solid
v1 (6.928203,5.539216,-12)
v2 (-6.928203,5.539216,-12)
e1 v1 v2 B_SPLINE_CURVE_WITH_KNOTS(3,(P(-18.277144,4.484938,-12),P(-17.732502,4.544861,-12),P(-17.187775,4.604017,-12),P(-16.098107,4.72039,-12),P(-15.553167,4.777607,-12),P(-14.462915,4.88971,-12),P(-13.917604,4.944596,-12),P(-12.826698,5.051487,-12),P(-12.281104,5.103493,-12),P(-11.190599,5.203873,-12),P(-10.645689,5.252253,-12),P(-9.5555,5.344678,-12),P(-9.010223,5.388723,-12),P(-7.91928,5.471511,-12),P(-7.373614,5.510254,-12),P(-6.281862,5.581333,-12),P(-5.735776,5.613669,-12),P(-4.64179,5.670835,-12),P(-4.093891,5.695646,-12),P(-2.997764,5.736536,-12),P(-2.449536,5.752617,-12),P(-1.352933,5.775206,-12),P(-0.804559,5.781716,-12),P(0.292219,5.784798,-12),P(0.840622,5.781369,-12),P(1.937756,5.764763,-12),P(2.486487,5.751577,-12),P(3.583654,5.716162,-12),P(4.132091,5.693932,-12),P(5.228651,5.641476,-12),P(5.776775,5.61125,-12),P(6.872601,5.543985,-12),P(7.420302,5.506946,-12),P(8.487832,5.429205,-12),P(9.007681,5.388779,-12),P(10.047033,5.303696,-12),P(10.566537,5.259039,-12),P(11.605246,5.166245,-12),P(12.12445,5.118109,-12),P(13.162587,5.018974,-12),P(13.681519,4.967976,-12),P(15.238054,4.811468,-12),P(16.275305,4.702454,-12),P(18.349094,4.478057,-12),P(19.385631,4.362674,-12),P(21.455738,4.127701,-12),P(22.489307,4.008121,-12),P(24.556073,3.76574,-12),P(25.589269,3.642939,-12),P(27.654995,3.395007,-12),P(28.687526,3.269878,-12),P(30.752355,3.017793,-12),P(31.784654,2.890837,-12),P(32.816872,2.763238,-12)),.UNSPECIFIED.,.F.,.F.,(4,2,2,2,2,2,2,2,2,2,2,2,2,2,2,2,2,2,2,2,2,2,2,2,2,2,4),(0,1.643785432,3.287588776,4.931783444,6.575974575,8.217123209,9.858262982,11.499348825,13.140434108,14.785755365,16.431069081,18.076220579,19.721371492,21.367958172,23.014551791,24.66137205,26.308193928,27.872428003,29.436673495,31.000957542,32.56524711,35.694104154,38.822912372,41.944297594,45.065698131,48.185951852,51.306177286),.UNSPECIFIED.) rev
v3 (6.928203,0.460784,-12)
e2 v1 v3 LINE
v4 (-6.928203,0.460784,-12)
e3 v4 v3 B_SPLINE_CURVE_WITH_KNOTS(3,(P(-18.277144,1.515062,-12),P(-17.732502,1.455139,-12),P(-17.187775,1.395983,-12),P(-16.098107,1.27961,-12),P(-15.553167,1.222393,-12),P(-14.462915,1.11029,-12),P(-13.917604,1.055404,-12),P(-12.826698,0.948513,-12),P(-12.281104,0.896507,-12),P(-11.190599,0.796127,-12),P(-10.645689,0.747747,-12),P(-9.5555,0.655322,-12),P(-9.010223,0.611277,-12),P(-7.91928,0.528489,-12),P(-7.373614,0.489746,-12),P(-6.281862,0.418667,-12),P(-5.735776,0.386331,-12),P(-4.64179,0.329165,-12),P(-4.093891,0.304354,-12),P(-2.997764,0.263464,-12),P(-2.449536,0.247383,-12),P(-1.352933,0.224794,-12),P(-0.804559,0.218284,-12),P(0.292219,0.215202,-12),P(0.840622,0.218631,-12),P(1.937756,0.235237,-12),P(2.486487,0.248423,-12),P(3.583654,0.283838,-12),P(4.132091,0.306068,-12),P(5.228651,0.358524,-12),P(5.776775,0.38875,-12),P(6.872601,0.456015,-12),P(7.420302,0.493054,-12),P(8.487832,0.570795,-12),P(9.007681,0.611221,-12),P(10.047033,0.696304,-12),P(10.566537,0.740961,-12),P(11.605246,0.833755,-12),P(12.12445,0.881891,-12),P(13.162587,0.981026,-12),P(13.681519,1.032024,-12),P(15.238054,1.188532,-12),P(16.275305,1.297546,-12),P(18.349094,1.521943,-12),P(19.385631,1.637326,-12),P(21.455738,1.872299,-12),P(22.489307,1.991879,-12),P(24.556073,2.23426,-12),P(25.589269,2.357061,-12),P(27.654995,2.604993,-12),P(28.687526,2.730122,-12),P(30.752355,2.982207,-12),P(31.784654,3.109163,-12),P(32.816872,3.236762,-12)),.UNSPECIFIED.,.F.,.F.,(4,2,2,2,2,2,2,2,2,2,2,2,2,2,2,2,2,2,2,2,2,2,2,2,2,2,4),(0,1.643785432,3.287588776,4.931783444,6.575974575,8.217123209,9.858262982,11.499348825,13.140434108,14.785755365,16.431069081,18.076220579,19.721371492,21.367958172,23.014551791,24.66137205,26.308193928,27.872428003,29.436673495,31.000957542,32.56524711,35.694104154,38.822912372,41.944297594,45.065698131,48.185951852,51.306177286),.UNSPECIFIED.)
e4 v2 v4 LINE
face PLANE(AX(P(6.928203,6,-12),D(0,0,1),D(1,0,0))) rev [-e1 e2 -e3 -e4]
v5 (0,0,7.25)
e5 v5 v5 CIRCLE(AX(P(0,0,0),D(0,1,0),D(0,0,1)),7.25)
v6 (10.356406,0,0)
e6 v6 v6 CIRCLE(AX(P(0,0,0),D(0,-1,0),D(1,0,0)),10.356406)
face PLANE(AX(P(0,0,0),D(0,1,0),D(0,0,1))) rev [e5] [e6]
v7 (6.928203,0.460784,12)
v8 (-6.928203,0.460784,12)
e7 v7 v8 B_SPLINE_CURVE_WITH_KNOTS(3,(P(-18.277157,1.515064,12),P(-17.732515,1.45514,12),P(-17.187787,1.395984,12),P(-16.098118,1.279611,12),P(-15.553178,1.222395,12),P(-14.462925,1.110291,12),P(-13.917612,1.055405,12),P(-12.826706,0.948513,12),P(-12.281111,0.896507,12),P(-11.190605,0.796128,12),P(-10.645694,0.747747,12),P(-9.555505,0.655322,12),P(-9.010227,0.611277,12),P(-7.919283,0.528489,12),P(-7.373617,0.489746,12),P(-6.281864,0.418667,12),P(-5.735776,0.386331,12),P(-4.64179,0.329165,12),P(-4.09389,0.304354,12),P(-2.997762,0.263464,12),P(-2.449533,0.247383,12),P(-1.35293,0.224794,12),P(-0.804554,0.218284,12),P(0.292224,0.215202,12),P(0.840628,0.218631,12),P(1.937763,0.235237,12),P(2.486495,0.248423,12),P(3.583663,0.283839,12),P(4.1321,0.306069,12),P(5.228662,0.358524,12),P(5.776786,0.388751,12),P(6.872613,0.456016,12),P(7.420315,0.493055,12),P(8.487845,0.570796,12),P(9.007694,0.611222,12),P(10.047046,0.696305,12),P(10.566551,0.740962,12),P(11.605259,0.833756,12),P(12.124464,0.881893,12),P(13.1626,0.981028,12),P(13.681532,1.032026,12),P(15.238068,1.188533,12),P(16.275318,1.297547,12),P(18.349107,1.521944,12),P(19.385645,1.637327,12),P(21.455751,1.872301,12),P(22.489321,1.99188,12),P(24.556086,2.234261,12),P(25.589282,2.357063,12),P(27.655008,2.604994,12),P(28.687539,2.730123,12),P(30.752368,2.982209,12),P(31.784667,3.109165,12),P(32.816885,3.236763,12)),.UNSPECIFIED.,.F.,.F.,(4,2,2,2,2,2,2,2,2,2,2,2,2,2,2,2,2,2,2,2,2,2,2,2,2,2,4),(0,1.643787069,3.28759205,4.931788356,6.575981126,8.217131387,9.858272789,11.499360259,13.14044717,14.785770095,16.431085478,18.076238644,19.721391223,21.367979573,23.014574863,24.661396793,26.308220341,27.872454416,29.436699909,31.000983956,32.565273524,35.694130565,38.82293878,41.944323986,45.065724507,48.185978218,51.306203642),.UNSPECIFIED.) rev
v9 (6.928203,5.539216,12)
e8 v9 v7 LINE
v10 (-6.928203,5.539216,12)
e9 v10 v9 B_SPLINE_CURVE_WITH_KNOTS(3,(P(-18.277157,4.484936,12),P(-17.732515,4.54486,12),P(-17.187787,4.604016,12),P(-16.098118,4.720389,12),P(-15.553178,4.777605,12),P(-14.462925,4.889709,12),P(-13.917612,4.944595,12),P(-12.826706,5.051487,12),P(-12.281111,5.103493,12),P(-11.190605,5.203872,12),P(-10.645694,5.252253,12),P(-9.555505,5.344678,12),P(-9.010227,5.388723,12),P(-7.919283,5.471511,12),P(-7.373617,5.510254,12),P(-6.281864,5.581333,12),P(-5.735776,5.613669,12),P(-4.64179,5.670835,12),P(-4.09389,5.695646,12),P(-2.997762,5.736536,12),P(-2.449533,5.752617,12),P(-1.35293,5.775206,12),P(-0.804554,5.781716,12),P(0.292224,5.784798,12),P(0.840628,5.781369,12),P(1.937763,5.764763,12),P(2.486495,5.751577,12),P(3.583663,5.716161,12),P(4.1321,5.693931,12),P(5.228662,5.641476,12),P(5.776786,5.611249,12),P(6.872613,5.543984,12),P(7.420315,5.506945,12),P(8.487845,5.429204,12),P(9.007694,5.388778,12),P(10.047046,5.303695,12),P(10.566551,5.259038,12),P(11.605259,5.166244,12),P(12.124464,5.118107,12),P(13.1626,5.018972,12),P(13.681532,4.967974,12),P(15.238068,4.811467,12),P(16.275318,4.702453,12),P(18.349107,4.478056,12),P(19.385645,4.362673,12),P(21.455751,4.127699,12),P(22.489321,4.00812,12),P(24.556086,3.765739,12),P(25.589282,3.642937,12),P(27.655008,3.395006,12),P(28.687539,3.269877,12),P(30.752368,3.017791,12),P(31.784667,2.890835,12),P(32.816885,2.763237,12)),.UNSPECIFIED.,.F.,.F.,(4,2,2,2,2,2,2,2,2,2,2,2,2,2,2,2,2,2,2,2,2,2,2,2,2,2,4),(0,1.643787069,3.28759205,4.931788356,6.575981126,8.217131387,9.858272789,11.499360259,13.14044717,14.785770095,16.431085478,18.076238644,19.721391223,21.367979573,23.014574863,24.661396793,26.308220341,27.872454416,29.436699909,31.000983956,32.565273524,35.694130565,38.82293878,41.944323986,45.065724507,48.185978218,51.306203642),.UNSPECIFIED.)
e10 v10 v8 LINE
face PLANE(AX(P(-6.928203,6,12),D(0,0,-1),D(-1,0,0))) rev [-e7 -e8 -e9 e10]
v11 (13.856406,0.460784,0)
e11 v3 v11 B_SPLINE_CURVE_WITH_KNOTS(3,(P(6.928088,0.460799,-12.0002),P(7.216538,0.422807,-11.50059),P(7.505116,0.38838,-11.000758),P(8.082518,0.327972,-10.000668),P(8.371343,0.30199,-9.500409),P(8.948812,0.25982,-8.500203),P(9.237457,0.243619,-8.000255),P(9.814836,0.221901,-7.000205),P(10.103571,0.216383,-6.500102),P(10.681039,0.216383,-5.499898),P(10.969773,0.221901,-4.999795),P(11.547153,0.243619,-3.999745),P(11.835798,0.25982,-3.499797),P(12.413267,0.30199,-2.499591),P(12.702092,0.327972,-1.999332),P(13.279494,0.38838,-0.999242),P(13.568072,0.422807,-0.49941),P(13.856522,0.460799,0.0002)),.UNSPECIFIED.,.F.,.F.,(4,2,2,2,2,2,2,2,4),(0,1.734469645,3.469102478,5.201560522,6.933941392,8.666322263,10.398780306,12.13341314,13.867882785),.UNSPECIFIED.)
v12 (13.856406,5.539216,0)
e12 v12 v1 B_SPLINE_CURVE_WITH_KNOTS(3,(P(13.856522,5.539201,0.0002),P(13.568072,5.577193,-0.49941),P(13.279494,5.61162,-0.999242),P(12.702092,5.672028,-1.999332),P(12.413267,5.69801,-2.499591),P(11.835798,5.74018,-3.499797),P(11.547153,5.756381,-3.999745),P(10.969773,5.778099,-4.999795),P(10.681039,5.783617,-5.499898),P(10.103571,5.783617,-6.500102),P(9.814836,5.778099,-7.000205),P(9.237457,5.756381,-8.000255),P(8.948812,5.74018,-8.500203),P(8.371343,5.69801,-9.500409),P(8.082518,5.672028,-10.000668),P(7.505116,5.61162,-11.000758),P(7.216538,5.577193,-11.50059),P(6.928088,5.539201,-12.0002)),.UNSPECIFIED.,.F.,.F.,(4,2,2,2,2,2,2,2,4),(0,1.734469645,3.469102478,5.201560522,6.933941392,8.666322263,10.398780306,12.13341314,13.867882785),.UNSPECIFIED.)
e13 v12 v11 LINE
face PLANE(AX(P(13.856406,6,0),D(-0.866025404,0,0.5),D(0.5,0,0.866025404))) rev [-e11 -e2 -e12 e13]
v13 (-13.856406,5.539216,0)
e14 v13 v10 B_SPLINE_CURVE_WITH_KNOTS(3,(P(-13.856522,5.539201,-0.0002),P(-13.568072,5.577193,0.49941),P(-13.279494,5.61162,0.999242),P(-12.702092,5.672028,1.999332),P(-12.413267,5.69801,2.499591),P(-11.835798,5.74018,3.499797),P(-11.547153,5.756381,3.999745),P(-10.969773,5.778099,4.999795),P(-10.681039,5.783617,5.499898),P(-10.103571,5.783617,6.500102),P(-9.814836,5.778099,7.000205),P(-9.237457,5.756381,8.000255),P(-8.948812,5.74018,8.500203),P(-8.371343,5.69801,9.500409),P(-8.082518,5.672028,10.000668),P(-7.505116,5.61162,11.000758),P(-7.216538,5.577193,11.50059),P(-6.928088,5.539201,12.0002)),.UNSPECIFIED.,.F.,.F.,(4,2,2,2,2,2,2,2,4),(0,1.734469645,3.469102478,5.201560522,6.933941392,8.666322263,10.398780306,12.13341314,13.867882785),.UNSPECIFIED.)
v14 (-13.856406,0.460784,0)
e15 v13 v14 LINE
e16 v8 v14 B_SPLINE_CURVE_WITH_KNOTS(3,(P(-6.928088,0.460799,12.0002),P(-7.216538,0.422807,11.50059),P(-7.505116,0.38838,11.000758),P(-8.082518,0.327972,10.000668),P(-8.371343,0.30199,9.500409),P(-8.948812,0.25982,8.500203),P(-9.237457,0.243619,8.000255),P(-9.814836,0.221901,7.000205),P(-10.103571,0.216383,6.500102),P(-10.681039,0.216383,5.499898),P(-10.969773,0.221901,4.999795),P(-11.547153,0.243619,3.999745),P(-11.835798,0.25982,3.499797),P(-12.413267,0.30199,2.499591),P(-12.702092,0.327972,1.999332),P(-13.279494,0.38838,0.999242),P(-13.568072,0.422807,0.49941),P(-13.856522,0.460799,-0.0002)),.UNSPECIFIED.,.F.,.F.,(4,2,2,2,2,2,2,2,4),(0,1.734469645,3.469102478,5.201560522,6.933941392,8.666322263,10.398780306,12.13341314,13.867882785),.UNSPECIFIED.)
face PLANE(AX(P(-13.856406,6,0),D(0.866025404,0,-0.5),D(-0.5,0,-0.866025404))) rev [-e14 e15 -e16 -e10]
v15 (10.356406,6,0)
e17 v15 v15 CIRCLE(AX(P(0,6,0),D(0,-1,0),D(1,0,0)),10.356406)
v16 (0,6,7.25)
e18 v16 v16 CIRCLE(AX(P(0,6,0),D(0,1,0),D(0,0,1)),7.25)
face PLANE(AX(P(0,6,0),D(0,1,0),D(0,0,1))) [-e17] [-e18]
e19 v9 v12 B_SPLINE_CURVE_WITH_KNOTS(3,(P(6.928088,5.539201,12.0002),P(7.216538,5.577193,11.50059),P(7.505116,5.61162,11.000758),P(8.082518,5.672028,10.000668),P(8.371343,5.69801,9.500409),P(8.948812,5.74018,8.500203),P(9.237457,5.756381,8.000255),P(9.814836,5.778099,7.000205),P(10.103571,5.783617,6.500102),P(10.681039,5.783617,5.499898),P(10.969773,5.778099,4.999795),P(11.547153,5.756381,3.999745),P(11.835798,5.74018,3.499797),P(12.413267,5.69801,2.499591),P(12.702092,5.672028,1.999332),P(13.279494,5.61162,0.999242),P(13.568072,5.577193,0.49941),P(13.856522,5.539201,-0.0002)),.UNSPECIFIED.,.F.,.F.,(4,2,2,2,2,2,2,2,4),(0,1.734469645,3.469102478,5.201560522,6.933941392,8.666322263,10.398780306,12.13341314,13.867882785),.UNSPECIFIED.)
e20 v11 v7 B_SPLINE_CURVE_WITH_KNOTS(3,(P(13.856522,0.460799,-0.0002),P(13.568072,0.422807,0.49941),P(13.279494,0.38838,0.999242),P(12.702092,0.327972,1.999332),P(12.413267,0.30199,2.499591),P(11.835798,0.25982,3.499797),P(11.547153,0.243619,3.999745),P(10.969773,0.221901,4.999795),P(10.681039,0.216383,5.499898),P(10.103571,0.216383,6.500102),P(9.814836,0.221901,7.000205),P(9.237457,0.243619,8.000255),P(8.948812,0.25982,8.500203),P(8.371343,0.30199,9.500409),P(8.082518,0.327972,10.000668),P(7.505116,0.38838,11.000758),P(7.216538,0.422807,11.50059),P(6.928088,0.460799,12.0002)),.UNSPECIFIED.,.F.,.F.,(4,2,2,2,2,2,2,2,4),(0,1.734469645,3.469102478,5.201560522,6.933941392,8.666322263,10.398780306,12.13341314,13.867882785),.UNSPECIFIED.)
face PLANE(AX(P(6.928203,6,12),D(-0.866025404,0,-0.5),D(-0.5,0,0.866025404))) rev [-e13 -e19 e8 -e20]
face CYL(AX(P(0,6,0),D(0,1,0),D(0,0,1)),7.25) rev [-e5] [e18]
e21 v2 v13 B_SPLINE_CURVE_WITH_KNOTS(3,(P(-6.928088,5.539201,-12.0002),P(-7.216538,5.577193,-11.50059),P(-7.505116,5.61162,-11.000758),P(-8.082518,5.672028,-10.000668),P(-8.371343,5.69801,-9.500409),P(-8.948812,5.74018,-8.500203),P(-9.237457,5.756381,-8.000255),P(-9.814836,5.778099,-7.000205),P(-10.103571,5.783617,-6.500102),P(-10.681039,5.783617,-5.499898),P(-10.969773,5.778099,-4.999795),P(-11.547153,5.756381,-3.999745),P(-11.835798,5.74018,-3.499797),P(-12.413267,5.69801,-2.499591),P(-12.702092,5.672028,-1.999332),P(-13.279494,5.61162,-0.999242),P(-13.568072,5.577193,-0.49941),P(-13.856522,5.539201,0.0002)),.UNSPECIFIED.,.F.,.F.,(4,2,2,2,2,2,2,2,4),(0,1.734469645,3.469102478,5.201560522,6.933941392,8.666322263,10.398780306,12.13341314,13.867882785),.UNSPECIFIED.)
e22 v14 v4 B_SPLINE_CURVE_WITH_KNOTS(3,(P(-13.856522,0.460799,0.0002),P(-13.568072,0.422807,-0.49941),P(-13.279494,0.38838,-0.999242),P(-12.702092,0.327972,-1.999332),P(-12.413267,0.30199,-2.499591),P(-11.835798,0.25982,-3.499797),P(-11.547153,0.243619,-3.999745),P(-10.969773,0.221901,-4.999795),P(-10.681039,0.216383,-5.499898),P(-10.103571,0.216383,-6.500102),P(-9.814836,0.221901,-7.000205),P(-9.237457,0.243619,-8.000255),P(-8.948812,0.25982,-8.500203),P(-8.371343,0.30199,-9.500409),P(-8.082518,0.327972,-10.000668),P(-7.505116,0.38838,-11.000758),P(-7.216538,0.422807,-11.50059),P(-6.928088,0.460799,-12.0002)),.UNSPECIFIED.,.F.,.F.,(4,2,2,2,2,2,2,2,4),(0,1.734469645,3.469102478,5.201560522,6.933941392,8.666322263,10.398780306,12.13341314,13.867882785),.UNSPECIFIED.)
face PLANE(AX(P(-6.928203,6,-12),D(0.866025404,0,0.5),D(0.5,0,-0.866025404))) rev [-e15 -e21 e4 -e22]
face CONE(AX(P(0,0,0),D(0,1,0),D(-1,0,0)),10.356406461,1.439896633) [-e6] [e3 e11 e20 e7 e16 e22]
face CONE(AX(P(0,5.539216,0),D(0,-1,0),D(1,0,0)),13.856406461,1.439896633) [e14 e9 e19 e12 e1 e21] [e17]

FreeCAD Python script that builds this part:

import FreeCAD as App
import Part
import Sketcher
from FreeCAD import Vector
Q = App.Units.Quantity

doc = App.newDocument("Part")
body = doc.addObject("PartDesign::Body", "Body")

# Sketch on XZ plane
sketch1 = body.newObject("Sketcher::SketchObject", "Sketch")
sketch1.AttachmentSupport = (doc.getObject("XZ_Plane"), [""])
sketch1.MapMode = "FlatFace"
sketch1.addGeometry(Part.LineSegment(Vector(7, -12, 0), Vector(-7, -12, 0)), False)
sketch1.addGeometry(Part.LineSegment(Vector(-7, -12, 0), Vector(-14, 0, 0)), False)
sketch1.addGeometry(Part.LineSegment(Vector(-14, 0, 0), Vector(-7, 12, 0)), False)
sketch1.addGeometry(Part.LineSegment(Vector(-7, 12, 0), Vector(7, 12, 0)), False)
sketch1.addGeometry(Part.LineSegment(Vector(7, 12, 0), Vector(14, 0, 0)), False)
sketch1.addGeometry(Part.LineSegment(Vector(14, 0, 0), Vector(7, -12, 0)), False)
sketch1.addConstraint(Sketcher.Constraint("Coincident", 0, 2, 1, 1))
sketch1.addConstraint(Sketcher.Constraint("Coincident", 1, 2, 2, 1))
sketch1.addConstraint(Sketcher.Constraint("Coincident", 2, 2, 3, 1))
sketch1.addConstraint(Sketcher.Constraint("Coincident", 3, 2, 4, 1))
sketch1.addConstraint(Sketcher.Constraint("Coincident", 4, 2, 5, 1))
sketch1.addConstraint(Sketcher.Constraint("Coincident", 5, 2, 0, 1))
sketch1.addConstraint(Sketcher.Constraint("Horizontal", 0))
sketch1.addConstraint(Sketcher.Constraint("Horizontal", 3))
sketch1.addConstraint(Sketcher.Constraint("Symmetric", 0, 2, 3, 2, -1, 1))
sketch1.addConstraint(Sketcher.Constraint("Symmetric", 1, 2, 4, 2, -1, 1))
sketch1.addConstraint(Sketcher.Constraint("PointOnObject", 1, 2, -1))
sketch1.addConstraint(Sketcher.Constraint("Parallel", 2, 5))
sketch1.addConstraint(Sketcher.Constraint("Vertical", 0, 2, 2, 2))
sketch1.addConstraint(Sketcher.Constraint("Angle", 1, Q("120 deg")))
sketch1.addConstraint(Sketcher.Constraint("DistanceY", 0, 2, -1, 1, 12.0))
sketch1.addConstraint(Sketcher.Constraint("DistanceX", 0, 2, 0, 1, 13.856406))
pad1 = body.newObject("PartDesign::Pad", "Pad")
pad1.Profile = sketch1
pad1.Length = 6
pad1.Reversed = True

# Sketch on XY plane
sketch2 = body.newObject("Sketcher::SketchObject", "Sketch001")
sketch2.AttachmentSupport = (doc.getObject("XY_Plane"), [""])
sketch2.MapMode = "FlatFace"
sketch2.addGeometry(Part.LineSegment(Vector(-13.86, 0, 0), Vector(-10.36, 0, 0)), False)
sketch2.addGeometry(Part.LineSegment(Vector(-10.36, 0, 0), Vector(-13.86, 0.46, 0)), False)
sketch2.addGeometry(Part.LineSegment(Vector(-13.86, 0.46, 0), Vector(-13.86, 0, 0)), False)
sketch2.addGeometry(Part.LineSegment(Vector(-10.36, 6, 0), Vector(-13.86, 6, 0)), False)
sketch2.addGeometry(Part.LineSegment(Vector(-13.86, 6, 0), Vector(-13.86, 5.54, 0)), False)
sketch2.addGeometry(Part.LineSegment(Vector(-13.86, 5.54, 0), Vector(-10.36, 6, 0)), False)
sketch2.addConstraint(Sketcher.Constraint("Coincident", 0, 2, 1, 1))
sketch2.addConstraint(Sketcher.Constraint("Coincident", 1, 2, 2, 1))
sketch2.addConstraint(Sketcher.Constraint("Coincident", 2, 2, 0, 1))
sketch2.addConstraint(Sketcher.Constraint("Coincident", 3, 2, 4, 1))
sketch2.addConstraint(Sketcher.Constraint("Coincident", 4, 2, 5, 1))
sketch2.addConstraint(Sketcher.Constraint("Coincident", 5, 2, 3, 1))
sketch2.addConstraint(Sketcher.Constraint("Horizontal", 0))
sketch2.addConstraint(Sketcher.Constraint("Vertical", 2))
sketch2.addConstraint(Sketcher.Constraint("Horizontal", 3))
sketch2.addConstraint(Sketcher.Constraint("Vertical", 4))
sketch2.addConstraint(Sketcher.Constraint("PointOnObject", 0, 2, -1))
sketch2.addConstraint(Sketcher.Constraint("Vertical", 2, 2, 3, 2))
sketch2.addConstraint(Sketcher.Constraint("Vertical", 0, 2, 5, 2))
sketch2.addConstraint(Sketcher.Constraint("Equal", 2, 4))
sketch2.addConstraint(Sketcher.Constraint("DistanceX", 0, 1, 0, 2, 3.5))
sketch2.addConstraint(Sketcher.Constraint("DistanceY", -1, 1, 3, 2, 6.0))
sketch2.addConstraint(Sketcher.Constraint("Angle", 1, Q("172.5 deg")))
sketch2.addConstraint(Sketcher.Constraint("DistanceX", 0, 2, -1, 1, 10.356406))
groove = body.newObject("PartDesign::Groove", "Groove")
groove.Profile = sketch2
groove.ReferenceAxis = (sketch2, ["V_Axis"])
groove.Angle = 360

# Sketch on XZ plane
sketch3 = body.newObject("Sketcher::SketchObject", "Sketch002")
sketch3.AttachmentSupport = (doc.getObject("XZ_Plane"), [""])
sketch3.MapMode = "FlatFace"
sketch3.AttachmentOffset = App.Placement(Vector(0, 0, -6), App.Rotation())
sketch3.addGeometry(Part.Circle(Vector(0, 0, 0), Vector(0, 0, 1), 7), False)
sketch3.addConstraint(Sketcher.Constraint("Coincident", 0, 3, -1, 1))
sketch3.addConstraint(Sketcher.Constraint("Diameter", 0, 14.5))
doc.recompute()
hole = body.newObject("PartDesign::Hole", "Hole")
hole.Profile = sketch3
hole.ThreadType = "None"
hole.Diameter = 14.5
hole.DepthType = "Dimension"
hole.Depth = 39.5
hole.DrillPoint = "Angled"
hole.DrillPointAngle = 118
hole.Reversed = True

doc.recompute()
